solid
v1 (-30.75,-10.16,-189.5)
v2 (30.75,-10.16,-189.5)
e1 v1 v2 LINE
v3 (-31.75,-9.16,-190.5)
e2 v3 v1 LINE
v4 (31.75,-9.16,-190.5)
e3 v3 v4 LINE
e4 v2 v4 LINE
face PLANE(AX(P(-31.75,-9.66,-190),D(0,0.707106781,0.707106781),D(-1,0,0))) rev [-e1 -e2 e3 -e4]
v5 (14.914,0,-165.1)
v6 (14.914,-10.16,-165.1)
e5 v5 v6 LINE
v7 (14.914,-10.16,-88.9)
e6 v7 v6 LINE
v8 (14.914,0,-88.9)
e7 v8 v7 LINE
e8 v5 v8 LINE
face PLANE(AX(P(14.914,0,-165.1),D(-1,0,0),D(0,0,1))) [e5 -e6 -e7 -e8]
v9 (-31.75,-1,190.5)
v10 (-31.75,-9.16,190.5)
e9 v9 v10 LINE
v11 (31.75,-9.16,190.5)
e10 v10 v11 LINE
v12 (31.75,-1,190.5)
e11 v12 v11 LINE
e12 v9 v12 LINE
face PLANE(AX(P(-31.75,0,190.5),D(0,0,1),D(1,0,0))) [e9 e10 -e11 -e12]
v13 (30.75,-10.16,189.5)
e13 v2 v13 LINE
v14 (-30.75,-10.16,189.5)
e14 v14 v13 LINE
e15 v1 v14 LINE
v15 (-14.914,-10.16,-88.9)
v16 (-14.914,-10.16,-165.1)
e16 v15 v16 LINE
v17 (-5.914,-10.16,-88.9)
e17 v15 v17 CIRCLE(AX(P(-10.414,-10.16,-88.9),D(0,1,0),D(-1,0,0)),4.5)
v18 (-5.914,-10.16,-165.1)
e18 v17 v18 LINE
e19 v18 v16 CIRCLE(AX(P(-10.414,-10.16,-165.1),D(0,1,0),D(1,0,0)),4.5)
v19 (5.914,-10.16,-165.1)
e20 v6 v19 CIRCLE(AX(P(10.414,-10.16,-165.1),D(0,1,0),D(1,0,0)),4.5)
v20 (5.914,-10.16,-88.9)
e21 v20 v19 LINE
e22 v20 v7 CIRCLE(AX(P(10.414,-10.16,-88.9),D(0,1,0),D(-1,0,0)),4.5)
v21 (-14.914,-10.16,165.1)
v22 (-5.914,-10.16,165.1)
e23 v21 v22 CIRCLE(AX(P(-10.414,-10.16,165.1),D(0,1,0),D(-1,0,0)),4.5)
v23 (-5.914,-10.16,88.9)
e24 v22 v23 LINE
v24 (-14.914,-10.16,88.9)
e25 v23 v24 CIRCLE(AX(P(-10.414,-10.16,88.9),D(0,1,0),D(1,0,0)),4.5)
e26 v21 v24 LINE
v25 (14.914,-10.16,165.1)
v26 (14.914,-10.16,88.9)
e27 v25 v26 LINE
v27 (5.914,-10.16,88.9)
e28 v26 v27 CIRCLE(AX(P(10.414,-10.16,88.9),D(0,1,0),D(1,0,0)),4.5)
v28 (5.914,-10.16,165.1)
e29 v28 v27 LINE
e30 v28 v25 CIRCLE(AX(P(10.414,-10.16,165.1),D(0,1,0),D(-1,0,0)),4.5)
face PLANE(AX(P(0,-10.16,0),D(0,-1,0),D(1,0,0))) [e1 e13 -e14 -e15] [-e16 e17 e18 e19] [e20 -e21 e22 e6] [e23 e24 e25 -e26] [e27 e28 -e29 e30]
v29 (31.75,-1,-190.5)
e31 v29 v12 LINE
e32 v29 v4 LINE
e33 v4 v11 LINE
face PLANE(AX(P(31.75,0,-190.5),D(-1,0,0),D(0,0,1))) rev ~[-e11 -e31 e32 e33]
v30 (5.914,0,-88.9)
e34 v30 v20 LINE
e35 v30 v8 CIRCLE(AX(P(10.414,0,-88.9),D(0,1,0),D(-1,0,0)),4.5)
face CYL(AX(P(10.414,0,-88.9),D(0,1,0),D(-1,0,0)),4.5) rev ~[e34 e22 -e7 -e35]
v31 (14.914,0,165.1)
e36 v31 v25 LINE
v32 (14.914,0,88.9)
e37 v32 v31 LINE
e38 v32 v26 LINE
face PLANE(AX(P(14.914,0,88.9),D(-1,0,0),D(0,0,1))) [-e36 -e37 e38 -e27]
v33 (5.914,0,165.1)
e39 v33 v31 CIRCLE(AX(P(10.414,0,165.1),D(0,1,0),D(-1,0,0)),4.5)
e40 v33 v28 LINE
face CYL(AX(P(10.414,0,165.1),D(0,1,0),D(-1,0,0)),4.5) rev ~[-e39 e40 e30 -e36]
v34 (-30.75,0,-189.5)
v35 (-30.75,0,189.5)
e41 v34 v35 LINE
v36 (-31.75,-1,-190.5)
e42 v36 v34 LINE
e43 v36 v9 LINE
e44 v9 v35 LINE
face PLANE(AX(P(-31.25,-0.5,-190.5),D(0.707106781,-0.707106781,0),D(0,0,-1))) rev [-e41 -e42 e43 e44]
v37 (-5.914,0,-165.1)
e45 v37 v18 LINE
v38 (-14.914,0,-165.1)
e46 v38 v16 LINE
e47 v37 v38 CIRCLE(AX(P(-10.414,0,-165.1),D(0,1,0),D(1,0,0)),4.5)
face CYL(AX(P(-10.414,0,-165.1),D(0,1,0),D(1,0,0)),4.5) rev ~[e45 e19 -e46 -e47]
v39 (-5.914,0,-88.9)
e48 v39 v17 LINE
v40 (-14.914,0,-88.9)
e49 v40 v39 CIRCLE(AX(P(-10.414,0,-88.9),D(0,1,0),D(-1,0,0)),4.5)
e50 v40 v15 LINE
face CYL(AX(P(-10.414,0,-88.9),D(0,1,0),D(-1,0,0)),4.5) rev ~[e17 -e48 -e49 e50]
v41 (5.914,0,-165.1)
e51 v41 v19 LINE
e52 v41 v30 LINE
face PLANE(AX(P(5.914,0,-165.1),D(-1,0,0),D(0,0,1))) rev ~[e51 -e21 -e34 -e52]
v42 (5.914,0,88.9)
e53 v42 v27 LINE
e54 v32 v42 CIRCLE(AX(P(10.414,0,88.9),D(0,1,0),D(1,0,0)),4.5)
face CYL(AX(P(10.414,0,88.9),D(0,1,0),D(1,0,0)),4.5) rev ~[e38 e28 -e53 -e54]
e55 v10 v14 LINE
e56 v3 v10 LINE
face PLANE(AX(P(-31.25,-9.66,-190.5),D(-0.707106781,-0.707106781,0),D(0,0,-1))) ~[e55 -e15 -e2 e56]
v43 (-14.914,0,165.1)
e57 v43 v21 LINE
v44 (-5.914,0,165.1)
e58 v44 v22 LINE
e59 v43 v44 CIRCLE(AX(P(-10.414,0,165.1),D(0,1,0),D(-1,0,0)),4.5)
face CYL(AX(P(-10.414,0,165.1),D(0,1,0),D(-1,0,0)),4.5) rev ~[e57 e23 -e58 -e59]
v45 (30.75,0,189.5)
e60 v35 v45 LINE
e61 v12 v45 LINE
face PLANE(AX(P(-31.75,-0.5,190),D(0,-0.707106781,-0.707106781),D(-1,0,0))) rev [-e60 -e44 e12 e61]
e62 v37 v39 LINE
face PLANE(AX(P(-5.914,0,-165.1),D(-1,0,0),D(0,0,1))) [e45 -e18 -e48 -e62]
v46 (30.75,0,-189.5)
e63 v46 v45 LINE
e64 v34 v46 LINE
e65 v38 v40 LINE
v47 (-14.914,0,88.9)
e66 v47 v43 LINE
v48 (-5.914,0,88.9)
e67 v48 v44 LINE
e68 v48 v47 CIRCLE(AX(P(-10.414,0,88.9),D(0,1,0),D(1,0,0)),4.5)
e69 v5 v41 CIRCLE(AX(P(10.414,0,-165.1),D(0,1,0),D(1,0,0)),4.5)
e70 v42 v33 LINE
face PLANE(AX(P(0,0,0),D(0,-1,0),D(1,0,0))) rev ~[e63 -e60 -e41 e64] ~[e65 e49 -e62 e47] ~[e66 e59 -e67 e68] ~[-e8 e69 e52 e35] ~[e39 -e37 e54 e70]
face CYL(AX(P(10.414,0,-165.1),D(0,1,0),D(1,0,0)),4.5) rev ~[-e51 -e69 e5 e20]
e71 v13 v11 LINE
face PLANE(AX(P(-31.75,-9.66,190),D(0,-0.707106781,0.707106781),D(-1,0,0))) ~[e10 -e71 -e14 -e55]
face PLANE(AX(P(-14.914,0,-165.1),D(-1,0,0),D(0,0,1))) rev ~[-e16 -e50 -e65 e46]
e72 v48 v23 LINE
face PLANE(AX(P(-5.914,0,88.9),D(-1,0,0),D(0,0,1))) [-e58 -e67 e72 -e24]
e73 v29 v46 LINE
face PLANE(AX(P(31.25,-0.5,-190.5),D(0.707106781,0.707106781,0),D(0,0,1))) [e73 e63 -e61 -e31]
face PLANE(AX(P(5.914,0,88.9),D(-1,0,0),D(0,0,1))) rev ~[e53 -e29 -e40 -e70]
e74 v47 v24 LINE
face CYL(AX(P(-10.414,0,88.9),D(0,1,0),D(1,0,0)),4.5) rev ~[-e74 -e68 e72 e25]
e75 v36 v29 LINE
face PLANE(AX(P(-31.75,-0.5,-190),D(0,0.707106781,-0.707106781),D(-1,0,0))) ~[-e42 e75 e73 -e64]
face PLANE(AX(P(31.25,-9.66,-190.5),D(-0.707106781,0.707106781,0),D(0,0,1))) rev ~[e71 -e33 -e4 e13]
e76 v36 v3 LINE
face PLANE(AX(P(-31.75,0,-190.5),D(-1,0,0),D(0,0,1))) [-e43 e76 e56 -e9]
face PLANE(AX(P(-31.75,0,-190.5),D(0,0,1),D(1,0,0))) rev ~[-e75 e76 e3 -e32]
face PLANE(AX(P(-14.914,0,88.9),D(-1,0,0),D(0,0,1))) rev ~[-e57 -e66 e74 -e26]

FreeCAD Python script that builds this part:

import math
import FreeCAD as App
import Part
import Sketcher
Q = App.Units.Quantity


def edges_at(feature, points):
    """Names of the edges that pass closest to the given points."""
    edges = feature.Shape.Edges
    near = lambda p: min(range(len(edges)), key=lambda i: edges[i].distToShape(Part.Vertex(*p))[0])
    return sorted({f"Edge{near(p) + 1}" for p in points})

doc = App.newDocument("Part")
params = doc.addObject("Spreadsheet::Sheet", "Params")
for row, (alias, value) in enumerate([
    ("sketch1_height", "15 in"),
    ("sketch1_width", "2.5 in"),
    ("pad1_length", "0.4 in"),
    ("sketch2_height", "3 in"),
    ("chamfer_size", "1 mm"),
], start=1):
    params.set(f"A{row}", alias)
    params.set(f"B{row}", "=" + value)
    params.setAlias(f"B{row}", alias)

body = doc.addObject("PartDesign::Body", "Body")

sketch1 = body.newObject("Sketcher::SketchObject", "Sketch")
sketch1.AttachmentSupport = (doc.getObject("XZ_Plane"), [""])
sketch1.MapMode = "FlatFace"
sketch1.addGeometry([
    Part.LineSegment(App.Vector(-32, 190, 0), App.Vector(-32, -190, 0)),
    Part.LineSegment(App.Vector(-32, -190, 0), App.Vector(32, -190, 0)),
    Part.LineSegment(App.Vector(32, -190, 0), App.Vector(32, 190, 0)),
    Part.LineSegment(App.Vector(32, 190, 0), App.Vector(-32, 190, 0)),
], False)
sketch1.addConstraint([
    Sketcher.Constraint("Coincident", 0, 2, 1, 1),
    Sketcher.Constraint("Coincident", 1, 2, 2, 1),
    Sketcher.Constraint("Coincident", 2, 2, 3, 1),
    Sketcher.Constraint("Coincident", 3, 2, 0, 1),
    Sketcher.Constraint("Vertical", 0),
    Sketcher.Constraint("Horizontal", 1),
    Sketcher.Constraint("Vertical", 2),
    Sketcher.Constraint("Horizontal", 3),
    Sketcher.Constraint("Symmetric", 0, 2, 2, 2, -1, 1),
    Sketcher.Constraint("DistanceY", 0, 2, 0, 1, Q("15 in")),
    Sketcher.Constraint("DistanceX", 1, 1, 1, 2, Q("2.5 in")),
])
sketch1.setExpression("Constraints[9]", "Params.sketch1_height")
sketch1.setExpression("Constraints[10]", "Params.sketch1_width")
pad1 = body.newObject("PartDesign::Pad", "Pad")
pad1.Profile = sketch1
pad1.setExpression("Length", "Params.pad1_length")

sketch2 = body.newObject("Sketcher::SketchObject", "Sketch001")
sketch2.AttachmentSupport = (doc.getObject("XZ_Plane"), [""])
sketch2.MapMode = "FlatFace"
sketch2.addGeometry([
    Part.LineSegment(App.Vector(14.9, -88.9, 0), App.Vector(14.9, -165.1, 0)),
    Part.ArcOfCircle(Part.Circle(App.Vector(10.4, -165.1, 0), App.Vector(0, 0, 1), 4.5), math.radians(180), math.radians(360)),
    Part.LineSegment(App.Vector(5.9, -165.1, 0), App.Vector(5.9, -88.9, 0)),
    Part.ArcOfCircle(Part.Circle(App.Vector(10.4, -88.9, 0), App.Vector(0, 0, 1), 4.5), math.radians(0), math.radians(180)),
    Part.LineSegment(App.Vector(14.9, 165.1, 0), App.Vector(14.9, 88.9, 0)),
    Part.ArcOfCircle(Part.Circle(App.Vector(10.4, 88.9, 0), App.Vector(0, 0, 1), 4.5), math.radians(180), math.radians(360)),
    Part.LineSegment(App.Vector(5.9, 88.9, 0), App.Vector(5.9, 165.1, 0)),
    Part.ArcOfCircle(Part.Circle(App.Vector(10.4, 165.1, 0), App.Vector(0, 0, 1), 4.5), math.radians(0), math.radians(180)),
    Part.LineSegment(App.Vector(-5.9, 165.1, 0), App.Vector(-5.9, 88.9, 0)),
    Part.ArcOfCircle(Part.Circle(App.Vector(-10.4, 88.9, 0), App.Vector(0, 0, 1), 4.5), math.radians(180), math.radians(360)),
    Part.LineSegment(App.Vector(-14.9, 88.9, 0), App.Vector(-14.9, 165.1, 0)),
    Part.ArcOfCircle(Part.Circle(App.Vector(-10.4, 165.1, 0), App.Vector(0, 0, 1), 4.5), math.radians(0), math.radians(180)),
    Part.ArcOfCircle(Part.Circle(App.Vector(-10.4, -88.9, 0), App.Vector(0, 0, 1), 4.5), math.radians(0), math.radians(180)),
    Part.LineSegment(App.Vector(-5.9, -88.9, 0), App.Vector(-5.9, -165.1, 0)),
    Part.ArcOfCircle(Part.Circle(App.Vector(-10.4, -165.1, 0), App.Vector(0, 0, 1), 4.5), math.radians(180), math.radians(360)),
    Part.LineSegment(App.Vector(-14.9, -165.1, 0), App.Vector(-14.9, -88.9, 0)),
], False)
sketch2.addConstraint([
    Sketcher.Constraint("Tangent", 0, 2, 1, 2),
    Sketcher.Constraint("Tangent", 1, 1, 2, 1),
    Sketcher.Constraint("Tangent", 2, 2, 3, 2),
    Sketcher.Constraint("Tangent", 3, 1, 0, 1),
    Sketcher.Constraint("Tangent", 4, 2, 5, 2),
    Sketcher.Constraint("Tangent", 5, 1, 6, 1),
    Sketcher.Constraint("Tangent", 6, 2, 7, 2),
    Sketcher.Constraint("Tangent", 7, 1, 4, 1),
    Sketcher.Constraint("Tangent", 8, 2, 9, 2),
    Sketcher.Constraint("Tangent", 9, 1, 10, 1),
    Sketcher.Constraint("Tangent", 10, 2, 11, 2),
    Sketcher.Constraint("Tangent", 11, 1, 8, 1),
    Sketcher.Constraint("Tangent", 12, 1, 13, 1),
    Sketcher.Constraint("Tangent", 13, 2, 14, 2),
    Sketcher.Constraint("Tangent", 14, 1, 15, 1),
    Sketcher.Constraint("Tangent", 15, 2, 12, 2),
    Sketcher.Constraint("Vertical", 0),
    Sketcher.Constraint("Vertical", 2),
    Sketcher.Constraint("Vertical", 4),
    Sketcher.Constraint("Vertical", 6),
    Sketcher.Constraint("Vertical", 8),
    Sketcher.Constraint("Vertical", 10),
    Sketcher.Constraint("Vertical", 13),
    Sketcher.Constraint("Vertical", 15),
    Sketcher.Constraint("Equal", 3, 5),
    Sketcher.Constraint("Equal", 7, 9),
    Sketcher.Constraint("Equal", 11, 12),
    Sketcher.Constraint("Symmetric", 3, 3, 9, 3, -1, 1),
    Sketcher.Constraint("Symmetric", 5, 3, 12, 3, -1, 1),
    Sketcher.Constraint("Symmetric", 5, 3, 9, 3, -2),
    Sketcher.Constraint("Horizontal", 7, 3, 11, 3),
    Sketcher.Constraint("Horizontal", 1, 3, 14, 3),
    Sketcher.Constraint("Equal", 2, 4),
    Sketcher.Constraint("DistanceY", 0, 2, 0, 1, Q("3 in")),
    Sketcher.Constraint("DistanceY", 3, 3, 5, 3, Q("7 in")),
    Sketcher.Constraint("DistanceX", -1, 1, 1, 3, Q("0.41 in")),
    Sketcher.Constraint("Radius", 1, 4.5),
])
sketch2.setExpression("Constraints[33]", "Params.sketch2_height")
pocket1 = body.newObject("PartDesign::Pocket", "Pocket")
pocket1.Profile = sketch2
pocket1.Type = "ThroughAll"
pocket1.Reversed = True
doc.recompute()

chamfer = body.newObject("PartDesign::Chamfer", "Chamfer")
chamfer.Base = (pocket1, edges_at(pocket1, [
    (-31.75, -10.16, 0),
    (31.75, -10.16, 0),
    (0, -10.16, 190.5),
    (0, -10.16, -190.5),
    (0, 0, 190.5),
    (-31.75, 0, 0),
    (0, 0, -190.5),
    (31.75, 0, 0),
]))
chamfer.setExpression("Size", "Params.chamfer_size")

doc.recompute()
